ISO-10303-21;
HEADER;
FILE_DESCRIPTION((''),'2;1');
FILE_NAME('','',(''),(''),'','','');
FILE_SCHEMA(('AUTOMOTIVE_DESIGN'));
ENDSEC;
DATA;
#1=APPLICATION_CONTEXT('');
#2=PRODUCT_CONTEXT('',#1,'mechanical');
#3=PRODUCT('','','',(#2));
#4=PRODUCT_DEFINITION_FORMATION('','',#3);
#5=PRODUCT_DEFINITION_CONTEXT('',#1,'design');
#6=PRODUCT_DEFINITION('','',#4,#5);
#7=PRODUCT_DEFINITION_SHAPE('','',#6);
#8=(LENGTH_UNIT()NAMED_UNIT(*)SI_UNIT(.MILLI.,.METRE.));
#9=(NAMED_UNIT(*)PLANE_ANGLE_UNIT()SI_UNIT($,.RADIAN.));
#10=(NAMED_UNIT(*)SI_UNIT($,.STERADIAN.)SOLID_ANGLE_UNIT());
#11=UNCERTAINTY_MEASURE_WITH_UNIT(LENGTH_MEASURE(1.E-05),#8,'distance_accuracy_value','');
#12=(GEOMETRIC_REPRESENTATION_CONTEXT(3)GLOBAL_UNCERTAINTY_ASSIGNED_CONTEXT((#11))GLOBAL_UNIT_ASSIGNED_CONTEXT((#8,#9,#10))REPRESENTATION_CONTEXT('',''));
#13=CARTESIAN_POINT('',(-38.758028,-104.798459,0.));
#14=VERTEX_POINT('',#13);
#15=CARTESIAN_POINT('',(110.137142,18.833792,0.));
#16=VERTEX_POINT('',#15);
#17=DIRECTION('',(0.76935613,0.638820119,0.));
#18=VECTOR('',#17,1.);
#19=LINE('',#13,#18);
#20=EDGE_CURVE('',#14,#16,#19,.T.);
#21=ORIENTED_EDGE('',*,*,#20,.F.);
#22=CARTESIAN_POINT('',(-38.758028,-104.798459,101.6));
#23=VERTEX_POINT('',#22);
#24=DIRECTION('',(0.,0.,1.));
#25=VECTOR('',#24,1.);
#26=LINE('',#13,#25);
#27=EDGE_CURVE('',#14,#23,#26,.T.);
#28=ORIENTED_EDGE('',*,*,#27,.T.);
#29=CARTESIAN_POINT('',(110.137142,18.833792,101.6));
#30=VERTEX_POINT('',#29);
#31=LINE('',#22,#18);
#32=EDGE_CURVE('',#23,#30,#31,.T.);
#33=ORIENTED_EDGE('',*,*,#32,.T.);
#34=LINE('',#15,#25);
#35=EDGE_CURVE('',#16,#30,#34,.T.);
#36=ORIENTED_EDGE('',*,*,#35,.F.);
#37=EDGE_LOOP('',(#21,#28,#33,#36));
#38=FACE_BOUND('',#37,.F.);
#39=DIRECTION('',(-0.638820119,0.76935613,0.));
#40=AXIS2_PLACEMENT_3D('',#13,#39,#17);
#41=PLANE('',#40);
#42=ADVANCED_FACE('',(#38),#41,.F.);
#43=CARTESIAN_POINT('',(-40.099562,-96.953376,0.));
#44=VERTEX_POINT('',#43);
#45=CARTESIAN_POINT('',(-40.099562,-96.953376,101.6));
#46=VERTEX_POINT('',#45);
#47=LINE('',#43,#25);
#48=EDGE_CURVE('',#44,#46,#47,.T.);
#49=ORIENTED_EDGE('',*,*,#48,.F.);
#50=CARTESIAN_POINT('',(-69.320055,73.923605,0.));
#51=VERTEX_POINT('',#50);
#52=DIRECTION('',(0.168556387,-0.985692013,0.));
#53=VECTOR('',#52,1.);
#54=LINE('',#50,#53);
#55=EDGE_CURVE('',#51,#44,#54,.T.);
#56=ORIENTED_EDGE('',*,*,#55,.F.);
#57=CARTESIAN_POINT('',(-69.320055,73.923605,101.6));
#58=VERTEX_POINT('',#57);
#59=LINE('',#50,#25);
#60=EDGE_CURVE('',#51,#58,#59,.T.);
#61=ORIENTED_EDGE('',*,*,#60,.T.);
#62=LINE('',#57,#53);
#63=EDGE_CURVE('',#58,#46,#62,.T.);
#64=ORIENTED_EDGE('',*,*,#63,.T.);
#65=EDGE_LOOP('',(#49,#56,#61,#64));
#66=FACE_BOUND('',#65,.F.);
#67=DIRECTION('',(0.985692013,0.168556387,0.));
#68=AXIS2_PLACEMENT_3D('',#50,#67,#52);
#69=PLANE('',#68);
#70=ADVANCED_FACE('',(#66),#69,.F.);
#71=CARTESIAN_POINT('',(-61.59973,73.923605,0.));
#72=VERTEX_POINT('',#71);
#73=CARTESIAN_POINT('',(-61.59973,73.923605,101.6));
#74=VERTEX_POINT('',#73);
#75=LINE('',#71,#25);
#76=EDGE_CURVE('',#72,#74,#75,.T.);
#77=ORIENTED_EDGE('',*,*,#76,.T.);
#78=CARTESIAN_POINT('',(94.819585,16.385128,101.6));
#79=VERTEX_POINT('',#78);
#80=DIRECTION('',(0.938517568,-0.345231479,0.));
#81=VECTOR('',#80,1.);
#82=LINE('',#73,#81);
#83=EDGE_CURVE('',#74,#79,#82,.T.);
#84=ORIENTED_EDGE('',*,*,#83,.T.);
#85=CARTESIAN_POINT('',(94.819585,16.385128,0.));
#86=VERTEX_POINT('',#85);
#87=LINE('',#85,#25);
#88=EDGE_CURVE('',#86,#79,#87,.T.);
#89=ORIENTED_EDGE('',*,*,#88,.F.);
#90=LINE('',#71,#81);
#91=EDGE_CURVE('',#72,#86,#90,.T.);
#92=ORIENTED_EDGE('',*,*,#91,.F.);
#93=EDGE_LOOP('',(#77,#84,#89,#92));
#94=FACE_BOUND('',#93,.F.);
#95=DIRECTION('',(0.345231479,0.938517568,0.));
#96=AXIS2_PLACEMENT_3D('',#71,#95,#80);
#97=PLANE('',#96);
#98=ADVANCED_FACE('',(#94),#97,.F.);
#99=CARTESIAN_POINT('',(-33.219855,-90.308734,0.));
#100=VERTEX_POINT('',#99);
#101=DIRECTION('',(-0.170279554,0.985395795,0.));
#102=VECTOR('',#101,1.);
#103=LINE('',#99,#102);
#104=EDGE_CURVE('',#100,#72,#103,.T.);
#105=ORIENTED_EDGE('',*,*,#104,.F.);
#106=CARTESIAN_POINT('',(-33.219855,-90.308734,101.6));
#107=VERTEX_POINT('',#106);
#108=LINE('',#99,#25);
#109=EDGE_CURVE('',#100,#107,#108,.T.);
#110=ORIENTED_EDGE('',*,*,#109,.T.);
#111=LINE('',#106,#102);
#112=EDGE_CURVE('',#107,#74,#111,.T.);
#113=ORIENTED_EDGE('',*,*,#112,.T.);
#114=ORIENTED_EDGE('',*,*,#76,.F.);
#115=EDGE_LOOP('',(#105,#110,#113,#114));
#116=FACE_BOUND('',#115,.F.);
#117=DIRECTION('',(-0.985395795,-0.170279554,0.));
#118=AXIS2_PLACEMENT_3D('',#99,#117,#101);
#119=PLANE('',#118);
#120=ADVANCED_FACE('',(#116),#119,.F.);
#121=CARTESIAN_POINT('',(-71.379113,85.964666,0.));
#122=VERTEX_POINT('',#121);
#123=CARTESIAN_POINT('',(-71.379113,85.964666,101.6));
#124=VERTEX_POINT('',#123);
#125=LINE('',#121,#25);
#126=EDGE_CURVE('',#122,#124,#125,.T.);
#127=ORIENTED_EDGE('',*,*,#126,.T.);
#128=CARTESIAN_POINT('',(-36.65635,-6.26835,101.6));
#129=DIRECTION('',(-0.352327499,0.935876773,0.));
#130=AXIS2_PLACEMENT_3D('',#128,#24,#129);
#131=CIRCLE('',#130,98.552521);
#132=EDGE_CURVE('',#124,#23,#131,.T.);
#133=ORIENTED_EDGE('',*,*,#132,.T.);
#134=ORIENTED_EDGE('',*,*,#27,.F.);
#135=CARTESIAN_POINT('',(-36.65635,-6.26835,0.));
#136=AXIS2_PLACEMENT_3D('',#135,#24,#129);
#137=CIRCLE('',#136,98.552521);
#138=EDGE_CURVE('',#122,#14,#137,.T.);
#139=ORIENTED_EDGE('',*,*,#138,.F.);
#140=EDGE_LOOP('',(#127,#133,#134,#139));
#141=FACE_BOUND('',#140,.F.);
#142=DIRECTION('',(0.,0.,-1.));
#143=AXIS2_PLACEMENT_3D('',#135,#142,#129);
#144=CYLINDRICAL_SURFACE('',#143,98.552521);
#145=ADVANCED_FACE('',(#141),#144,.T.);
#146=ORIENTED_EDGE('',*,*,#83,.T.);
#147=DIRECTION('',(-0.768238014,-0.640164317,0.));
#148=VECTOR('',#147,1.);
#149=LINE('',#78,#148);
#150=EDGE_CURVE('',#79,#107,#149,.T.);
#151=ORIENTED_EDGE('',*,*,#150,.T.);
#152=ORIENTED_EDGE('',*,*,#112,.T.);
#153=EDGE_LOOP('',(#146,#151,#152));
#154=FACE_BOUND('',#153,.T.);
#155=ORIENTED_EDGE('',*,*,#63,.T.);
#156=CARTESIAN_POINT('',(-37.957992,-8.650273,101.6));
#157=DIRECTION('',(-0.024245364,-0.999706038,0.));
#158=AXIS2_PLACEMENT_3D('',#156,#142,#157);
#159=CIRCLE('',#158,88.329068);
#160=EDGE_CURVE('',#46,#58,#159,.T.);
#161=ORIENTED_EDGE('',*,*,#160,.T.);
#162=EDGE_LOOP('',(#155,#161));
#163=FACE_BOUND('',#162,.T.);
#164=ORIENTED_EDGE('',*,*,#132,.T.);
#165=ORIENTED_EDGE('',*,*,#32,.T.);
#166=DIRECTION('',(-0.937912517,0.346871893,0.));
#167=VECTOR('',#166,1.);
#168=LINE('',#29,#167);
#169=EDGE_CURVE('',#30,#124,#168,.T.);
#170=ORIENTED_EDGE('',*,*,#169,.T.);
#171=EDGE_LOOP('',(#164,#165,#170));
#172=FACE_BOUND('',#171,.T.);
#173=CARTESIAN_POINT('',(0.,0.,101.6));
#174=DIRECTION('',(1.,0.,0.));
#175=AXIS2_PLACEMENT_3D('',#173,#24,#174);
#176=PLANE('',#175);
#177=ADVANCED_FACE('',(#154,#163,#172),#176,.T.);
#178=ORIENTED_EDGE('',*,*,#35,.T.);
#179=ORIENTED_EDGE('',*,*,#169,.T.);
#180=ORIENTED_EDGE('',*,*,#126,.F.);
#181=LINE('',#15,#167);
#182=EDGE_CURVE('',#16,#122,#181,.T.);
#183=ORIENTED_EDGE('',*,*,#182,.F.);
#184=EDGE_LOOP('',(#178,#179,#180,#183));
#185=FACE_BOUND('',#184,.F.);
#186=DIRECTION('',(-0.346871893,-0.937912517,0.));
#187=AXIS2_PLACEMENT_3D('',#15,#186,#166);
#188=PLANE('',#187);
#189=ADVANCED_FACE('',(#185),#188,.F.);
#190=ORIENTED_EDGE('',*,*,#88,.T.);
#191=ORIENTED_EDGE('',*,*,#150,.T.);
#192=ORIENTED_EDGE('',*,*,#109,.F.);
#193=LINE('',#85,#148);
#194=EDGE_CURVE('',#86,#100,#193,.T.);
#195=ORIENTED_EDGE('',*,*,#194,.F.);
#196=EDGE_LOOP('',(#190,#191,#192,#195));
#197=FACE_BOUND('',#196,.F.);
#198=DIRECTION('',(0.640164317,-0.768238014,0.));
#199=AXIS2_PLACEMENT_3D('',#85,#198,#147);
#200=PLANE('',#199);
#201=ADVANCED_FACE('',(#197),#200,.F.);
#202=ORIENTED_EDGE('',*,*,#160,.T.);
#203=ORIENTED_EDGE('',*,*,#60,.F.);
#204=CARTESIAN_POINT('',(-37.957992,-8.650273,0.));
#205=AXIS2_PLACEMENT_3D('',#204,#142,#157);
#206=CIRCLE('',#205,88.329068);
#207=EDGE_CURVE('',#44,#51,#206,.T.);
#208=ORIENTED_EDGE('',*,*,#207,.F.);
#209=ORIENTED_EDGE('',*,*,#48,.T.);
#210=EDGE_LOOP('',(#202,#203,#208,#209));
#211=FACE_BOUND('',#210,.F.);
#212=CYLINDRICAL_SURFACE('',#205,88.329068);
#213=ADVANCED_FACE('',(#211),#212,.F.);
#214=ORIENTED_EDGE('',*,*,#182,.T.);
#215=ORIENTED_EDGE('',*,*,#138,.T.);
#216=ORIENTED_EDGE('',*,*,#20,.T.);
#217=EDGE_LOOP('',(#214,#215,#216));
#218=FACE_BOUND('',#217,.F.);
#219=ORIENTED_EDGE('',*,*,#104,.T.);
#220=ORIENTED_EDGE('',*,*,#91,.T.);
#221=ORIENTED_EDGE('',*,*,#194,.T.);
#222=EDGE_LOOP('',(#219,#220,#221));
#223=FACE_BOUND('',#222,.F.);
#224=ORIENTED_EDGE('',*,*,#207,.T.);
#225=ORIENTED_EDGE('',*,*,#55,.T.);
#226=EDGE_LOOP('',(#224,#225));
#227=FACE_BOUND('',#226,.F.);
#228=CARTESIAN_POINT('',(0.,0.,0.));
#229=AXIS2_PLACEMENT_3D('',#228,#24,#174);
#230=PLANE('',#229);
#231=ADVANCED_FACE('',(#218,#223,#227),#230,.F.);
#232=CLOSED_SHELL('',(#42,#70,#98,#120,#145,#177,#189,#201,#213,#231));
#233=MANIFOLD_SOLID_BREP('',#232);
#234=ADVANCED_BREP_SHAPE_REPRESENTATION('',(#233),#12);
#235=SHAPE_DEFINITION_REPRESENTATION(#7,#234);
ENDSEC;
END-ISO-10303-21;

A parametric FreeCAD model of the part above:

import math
import FreeCAD as App
import Part
import Sketcher
Q = App.Units.Quantity

doc = App.newDocument("Part")
body = doc.addObject("PartDesign::Body", "Body")

sketch1 = body.newObject("Sketcher::SketchObject", "Sketch")
sketch1.AttachmentSupport = (doc.getObject("XY_Plane"), [""])
sketch1.MapMode = "FlatFace"
sketch1.addGeometry([
    Part.LineSegment(App.Vector(-38.758028, -104.798459, 0), App.Vector(110.137142, 18.833792, 0)),
    Part.LineSegment(App.Vector(110.137142, 18.833792, 0), App.Vector(-71.379113, 85.964666, 0)),
    Part.ArcOfCircle(Part.Circle(App.Vector(-36.65635, -6.26835, 0), App.Vector(0, 0, 1), 98.552521), math.radians(110.629742), math.radians(268.778048)),
    Part.LineSegment(App.Vector(-69.320055, 73.923605, 0), App.Vector(-40.099562, -96.953376, 0)),
    Part.ArcOfCircle(Part.Circle(App.Vector(-37.957992, -8.650273, 0), App.Vector(0, 0, 1), 88.329068), math.radians(110.797083), math.radians(268.610707)),
    Part.LineSegment(App.Vector(-33.219855, -90.308734, 0), App.Vector(-61.59973, 73.923605, 0)),
    Part.LineSegment(App.Vector(-61.59973, 73.923605, 0), App.Vector(94.819585, 16.385128, 0)),
    Part.LineSegment(App.Vector(94.819585, 16.385128, 0), App.Vector(-33.219855, -90.308734, 0)),
], False)
sketch1.addConstraint([
    Sketcher.Constraint("Coincident", 0, 2, 1, 1),
    Sketcher.Constraint("Coincident", 1, 2, 2, 1),
    Sketcher.Constraint("Coincident", 2, 2, 0, 1),
    Sketcher.Constraint("Coincident", 3, 1, 4, 1),
    Sketcher.Constraint("Coincident", 4, 2, 3, 2),
    Sketcher.Constraint("Coincident", 5, 2, 6, 1),
    Sketcher.Constraint("Coincident", 6, 2, 7, 1),
    Sketcher.Constraint("Coincident", 7, 2, 5, 1),
    Sketcher.Constraint("Horizontal", 3, 1, 5, 2),
    Sketcher.Constraint("Equal", 0, 1),
    Sketcher.Constraint("Equal", 5, 6),
    Sketcher.Constraint("Equal", 6, 7),
    Sketcher.Constraint("Radius", 2, Q("98.552521 mm")),
    Sketcher.Constraint("Radius", 4, Q("88.329068 mm")),
    Sketcher.Constraint("DistanceY", 4, 2, 4, 3, Q("3.4765001 in")),
    Sketcher.Constraint("DistanceY", 4, 2, 7, 2, Q("0.2616001 in")),
    Sketcher.Constraint("DistanceY", 4, 3, 6, 2, Q("25.035401 mm")),
    Sketcher.Constraint("Distance", 0, Q("193.532181 mm")),
    Sketcher.Constraint("Distance", 5, Q("166.666369 mm")),
    Sketcher.Constraint("DistanceX", 2, 3, -1, 1, Q("36.65635 mm")),
    Sketcher.Constraint("DistanceY", 2, 3, -1, 1, Q("6.26835 mm")),
    Sketcher.Constraint("DistanceX", 4, 3, -1, 1, Q("37.957992 mm")),
    Sketcher.Constraint("DistanceX", -1, 1, 0, 2, Q("110.137142 mm")),
    Sketcher.Constraint("DistanceY", -1, 1, 0, 2, Q("18.833792 mm")),
    Sketcher.Constraint("DistanceX", 5, 2, -1, 1, Q("61.59973 mm")),
    Sketcher.Constraint("DistanceY", -1, 1, 6, 2, Q("16.385128 mm")),
])
pad1 = body.newObject("PartDesign::Pad", "Pad")
pad1.Profile = sketch1
pad1.Length = Q("4 in")

doc.recompute()
